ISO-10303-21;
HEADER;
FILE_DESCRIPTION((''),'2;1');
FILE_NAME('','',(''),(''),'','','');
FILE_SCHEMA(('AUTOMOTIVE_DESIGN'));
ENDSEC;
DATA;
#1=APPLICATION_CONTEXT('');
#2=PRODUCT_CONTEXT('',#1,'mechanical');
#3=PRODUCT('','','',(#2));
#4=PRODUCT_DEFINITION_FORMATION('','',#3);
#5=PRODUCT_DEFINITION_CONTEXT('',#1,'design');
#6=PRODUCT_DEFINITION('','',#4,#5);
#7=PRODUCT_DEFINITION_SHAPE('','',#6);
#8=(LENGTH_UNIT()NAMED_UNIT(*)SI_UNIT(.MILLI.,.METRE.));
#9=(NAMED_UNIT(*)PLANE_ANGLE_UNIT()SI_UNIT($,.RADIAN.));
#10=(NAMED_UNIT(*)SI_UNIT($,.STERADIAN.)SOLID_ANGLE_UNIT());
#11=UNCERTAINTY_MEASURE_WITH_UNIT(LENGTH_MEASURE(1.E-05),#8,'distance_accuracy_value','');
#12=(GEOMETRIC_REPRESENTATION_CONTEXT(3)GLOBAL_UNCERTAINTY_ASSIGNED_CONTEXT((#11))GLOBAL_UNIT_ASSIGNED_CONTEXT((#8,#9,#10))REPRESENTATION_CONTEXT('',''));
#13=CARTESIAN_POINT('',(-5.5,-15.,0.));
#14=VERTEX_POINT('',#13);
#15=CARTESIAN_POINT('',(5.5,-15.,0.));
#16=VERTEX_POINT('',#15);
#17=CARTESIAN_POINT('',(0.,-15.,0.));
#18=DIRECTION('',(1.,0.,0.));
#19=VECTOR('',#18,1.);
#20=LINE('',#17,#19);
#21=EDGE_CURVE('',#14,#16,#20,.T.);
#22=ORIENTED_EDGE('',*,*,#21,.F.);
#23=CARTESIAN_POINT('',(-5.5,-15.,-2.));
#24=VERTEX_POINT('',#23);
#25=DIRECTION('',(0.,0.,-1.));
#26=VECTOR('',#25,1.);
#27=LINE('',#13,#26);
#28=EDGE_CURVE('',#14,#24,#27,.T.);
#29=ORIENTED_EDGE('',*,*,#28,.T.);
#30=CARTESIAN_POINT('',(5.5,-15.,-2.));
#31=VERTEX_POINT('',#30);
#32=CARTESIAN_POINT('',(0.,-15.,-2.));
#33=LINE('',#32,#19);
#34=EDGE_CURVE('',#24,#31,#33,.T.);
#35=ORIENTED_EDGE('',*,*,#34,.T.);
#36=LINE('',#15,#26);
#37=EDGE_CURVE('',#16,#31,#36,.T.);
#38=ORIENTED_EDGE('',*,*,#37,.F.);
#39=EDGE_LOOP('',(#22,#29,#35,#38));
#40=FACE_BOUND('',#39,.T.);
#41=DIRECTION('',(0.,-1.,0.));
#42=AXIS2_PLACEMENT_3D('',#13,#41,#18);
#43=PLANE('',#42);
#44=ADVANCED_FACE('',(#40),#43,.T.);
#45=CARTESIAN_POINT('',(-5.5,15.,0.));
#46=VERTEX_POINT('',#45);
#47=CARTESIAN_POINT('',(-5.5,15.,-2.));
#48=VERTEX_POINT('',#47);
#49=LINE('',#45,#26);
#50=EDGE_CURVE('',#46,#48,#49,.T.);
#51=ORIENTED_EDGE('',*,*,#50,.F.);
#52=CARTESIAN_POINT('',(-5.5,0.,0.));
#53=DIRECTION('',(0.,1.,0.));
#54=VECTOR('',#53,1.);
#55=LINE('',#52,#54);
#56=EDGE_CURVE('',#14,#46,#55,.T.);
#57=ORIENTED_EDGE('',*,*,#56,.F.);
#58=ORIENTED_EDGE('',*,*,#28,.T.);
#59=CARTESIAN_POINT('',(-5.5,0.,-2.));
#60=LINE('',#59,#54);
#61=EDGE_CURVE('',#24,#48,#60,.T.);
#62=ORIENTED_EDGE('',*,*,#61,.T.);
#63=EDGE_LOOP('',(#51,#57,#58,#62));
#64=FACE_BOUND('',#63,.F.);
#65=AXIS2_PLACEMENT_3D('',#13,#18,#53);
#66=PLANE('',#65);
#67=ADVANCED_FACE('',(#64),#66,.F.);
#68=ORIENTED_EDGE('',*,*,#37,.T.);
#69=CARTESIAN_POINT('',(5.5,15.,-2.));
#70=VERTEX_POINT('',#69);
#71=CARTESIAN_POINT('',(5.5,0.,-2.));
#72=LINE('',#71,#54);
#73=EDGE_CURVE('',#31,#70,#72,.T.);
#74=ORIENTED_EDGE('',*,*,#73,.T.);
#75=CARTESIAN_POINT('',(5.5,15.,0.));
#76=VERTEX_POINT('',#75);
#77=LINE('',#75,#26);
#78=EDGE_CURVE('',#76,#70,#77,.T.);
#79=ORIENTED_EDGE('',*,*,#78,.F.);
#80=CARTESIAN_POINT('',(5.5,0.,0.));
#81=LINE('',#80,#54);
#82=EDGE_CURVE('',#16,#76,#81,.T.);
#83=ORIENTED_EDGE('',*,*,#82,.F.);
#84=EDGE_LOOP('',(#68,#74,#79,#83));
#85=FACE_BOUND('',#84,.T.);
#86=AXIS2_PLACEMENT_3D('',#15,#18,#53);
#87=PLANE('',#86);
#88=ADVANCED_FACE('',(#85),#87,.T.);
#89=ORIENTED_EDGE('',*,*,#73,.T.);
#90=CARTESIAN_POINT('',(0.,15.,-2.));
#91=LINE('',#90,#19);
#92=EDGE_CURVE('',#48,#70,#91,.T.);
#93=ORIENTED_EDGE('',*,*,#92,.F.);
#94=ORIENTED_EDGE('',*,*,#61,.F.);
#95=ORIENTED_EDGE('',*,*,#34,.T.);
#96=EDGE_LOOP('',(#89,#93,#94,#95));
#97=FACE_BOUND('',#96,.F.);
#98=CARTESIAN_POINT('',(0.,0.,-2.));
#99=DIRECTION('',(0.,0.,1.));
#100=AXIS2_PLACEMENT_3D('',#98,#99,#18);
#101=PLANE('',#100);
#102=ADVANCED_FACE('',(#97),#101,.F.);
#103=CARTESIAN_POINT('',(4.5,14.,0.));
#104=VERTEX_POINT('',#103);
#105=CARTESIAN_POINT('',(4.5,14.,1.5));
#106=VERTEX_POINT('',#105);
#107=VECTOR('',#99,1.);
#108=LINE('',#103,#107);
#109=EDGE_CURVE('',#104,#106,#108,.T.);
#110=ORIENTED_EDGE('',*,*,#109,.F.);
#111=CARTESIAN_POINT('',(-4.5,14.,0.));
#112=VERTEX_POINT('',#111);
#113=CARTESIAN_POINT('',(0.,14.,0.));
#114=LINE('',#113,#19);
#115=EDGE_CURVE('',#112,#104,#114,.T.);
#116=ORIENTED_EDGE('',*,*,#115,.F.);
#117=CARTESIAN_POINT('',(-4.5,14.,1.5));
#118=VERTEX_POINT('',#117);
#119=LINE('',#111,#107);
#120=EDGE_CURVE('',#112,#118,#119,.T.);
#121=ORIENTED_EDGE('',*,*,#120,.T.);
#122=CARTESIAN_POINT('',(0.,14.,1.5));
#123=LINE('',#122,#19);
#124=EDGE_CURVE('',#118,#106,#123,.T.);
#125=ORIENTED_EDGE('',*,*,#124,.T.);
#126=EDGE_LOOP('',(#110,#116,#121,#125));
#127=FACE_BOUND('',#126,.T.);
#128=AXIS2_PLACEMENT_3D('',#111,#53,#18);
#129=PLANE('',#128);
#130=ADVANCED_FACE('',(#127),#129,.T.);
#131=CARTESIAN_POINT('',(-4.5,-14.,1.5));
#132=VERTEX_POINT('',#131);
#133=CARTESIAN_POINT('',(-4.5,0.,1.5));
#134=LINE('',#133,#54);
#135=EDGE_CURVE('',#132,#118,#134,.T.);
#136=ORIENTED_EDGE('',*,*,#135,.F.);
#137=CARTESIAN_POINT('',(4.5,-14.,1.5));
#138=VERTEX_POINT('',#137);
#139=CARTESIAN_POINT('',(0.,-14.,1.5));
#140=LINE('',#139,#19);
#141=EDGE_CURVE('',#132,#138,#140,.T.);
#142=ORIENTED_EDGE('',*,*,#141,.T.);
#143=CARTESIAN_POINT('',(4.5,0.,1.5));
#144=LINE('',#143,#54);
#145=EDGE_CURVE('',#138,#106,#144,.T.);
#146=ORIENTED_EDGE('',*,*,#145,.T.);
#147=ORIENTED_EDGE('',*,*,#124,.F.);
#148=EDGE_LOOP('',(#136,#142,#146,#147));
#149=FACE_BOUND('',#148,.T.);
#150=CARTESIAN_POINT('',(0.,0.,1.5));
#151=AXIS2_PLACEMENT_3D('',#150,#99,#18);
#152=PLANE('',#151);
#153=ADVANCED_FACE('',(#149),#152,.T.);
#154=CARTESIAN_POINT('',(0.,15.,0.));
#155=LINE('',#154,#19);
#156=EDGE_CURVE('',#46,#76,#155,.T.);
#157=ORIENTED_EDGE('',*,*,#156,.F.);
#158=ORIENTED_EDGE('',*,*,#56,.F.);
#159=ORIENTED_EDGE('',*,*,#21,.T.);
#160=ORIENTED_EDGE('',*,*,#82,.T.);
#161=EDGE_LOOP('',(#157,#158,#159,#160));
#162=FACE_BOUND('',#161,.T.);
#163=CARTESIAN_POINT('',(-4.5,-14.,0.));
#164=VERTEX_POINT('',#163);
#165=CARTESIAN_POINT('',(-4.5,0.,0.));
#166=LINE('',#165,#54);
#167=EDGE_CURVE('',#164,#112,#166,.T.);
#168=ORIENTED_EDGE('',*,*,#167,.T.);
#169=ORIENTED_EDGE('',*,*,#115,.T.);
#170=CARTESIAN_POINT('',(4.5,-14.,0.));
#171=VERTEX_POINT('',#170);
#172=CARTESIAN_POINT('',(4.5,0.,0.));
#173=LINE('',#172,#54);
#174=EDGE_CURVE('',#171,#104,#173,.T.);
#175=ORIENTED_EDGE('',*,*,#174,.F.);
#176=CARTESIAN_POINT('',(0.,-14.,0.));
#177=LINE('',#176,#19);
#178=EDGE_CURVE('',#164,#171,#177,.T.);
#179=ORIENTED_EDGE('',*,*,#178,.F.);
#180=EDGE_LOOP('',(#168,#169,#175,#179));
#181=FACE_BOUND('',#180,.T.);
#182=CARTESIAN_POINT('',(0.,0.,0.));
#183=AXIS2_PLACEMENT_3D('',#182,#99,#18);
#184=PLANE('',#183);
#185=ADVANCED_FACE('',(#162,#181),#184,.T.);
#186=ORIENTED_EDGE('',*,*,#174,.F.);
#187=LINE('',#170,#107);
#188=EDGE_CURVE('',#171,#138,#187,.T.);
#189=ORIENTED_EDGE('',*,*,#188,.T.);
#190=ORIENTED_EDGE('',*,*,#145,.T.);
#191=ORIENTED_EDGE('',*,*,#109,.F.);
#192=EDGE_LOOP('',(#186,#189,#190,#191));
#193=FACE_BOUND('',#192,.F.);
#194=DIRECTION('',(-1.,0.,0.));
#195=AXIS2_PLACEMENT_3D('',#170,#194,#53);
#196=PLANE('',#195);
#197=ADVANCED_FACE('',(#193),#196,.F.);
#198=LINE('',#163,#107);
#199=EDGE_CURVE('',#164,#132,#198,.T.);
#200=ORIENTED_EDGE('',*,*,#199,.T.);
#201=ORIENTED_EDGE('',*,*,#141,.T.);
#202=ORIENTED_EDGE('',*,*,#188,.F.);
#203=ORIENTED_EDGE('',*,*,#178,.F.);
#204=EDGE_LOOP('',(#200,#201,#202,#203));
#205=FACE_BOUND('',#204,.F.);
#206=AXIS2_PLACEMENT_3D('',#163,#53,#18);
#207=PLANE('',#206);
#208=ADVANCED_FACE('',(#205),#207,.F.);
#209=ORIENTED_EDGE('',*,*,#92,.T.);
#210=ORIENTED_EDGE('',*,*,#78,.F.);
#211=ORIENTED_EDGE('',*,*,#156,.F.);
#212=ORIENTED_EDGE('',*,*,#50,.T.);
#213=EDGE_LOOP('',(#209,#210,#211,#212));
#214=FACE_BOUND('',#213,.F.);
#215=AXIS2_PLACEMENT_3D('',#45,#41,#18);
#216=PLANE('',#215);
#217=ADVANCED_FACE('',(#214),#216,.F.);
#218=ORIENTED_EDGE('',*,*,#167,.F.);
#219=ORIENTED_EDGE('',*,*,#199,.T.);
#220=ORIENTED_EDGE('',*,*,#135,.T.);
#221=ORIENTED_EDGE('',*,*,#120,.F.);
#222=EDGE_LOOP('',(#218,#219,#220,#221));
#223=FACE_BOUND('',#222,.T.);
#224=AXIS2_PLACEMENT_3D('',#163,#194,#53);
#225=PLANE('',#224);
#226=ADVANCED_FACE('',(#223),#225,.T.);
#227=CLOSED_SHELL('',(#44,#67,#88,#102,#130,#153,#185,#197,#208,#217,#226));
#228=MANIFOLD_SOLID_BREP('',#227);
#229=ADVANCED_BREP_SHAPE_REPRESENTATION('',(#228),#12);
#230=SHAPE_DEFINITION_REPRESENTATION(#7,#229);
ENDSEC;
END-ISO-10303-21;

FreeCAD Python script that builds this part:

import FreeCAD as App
import Part
import Sketcher
Q = App.Units.Quantity

doc = App.newDocument("Part")
body = doc.addObject("PartDesign::Body", "Body")

sketch1 = body.newObject("Sketcher::SketchObject", "Sketch")
sketch1.AttachmentSupport = (doc.getObject("XY_Plane"), [""])
sketch1.MapMode = "FlatFace"
sketch1.addGeometry(Part.LineSegment(App.Vector(-6, 15, 0), App.Vector(-6, -15, 0)), False)
sketch1.addGeometry(Part.LineSegment(App.Vector(-6, -15, 0), App.Vector(6, -15, 0)), False)
sketch1.addGeometry(Part.LineSegment(App.Vector(6, -15, 0), App.Vector(6, 15, 0)), False)
sketch1.addGeometry(Part.LineSegment(App.Vector(6, 15, 0), App.Vector(-6, 15, 0)), False)
sketch1.addConstraint(Sketcher.Constraint("Coincident", 0, 2, 1, 1))
sketch1.addConstraint(Sketcher.Constraint("Coincident", 1, 2, 2, 1))
sketch1.addConstraint(Sketcher.Constraint("Coincident", 2, 2, 3, 1))
sketch1.addConstraint(Sketcher.Constraint("Coincident", 3, 2, 0, 1))
sketch1.addConstraint(Sketcher.Constraint("Vertical", 0))
sketch1.addConstraint(Sketcher.Constraint("Horizontal", 1))
sketch1.addConstraint(Sketcher.Constraint("Vertical", 2))
sketch1.addConstraint(Sketcher.Constraint("Horizontal", 3))
sketch1.addConstraint(Sketcher.Constraint("Symmetric", 0, 2, 2, 2, -1, 1))
sketch1.addConstraint(Sketcher.Constraint("DistanceX", 1, 1, 1, 2, Q("11 mm")))
sketch1.addConstraint(Sketcher.Constraint("DistanceY", 0, 2, 0, 1, Q("30 mm")))
pad1 = body.newObject("PartDesign::Pad", "Pad")
pad1.Profile = sketch1
pad1.Length = 2
pad1.Reversed = True

sketch2 = body.newObject("Sketcher::SketchObject", "Sketch001")
sketch2.AttachmentSupport = (doc.getObject("XY_Plane"), [""])
sketch2.MapMode = "FlatFace"
sketch2.addGeometry(Part.LineSegment(App.Vector(-4, 14, 0), App.Vector(-4, -14, 0)), False)
sketch2.addGeometry(Part.LineSegment(App.Vector(-4, -14, 0), App.Vector(4, -14, 0)), False)
sketch2.addGeometry(Part.LineSegment(App.Vector(4, -14, 0), App.Vector(4, 14, 0)), False)
sketch2.addGeometry(Part.LineSegment(App.Vector(4, 14, 0), App.Vector(-4, 14, 0)), False)
sketch2.addConstraint(Sketcher.Constraint("Coincident", 0, 2, 1, 1))
sketch2.addConstraint(Sketcher.Constraint("Coincident", 1, 2, 2, 1))
sketch2.addConstraint(Sketcher.Constraint("Coincident", 2, 2, 3, 1))
sketch2.addConstraint(Sketcher.Constraint("Coincident", 3, 2, 0, 1))
sketch2.addConstraint(Sketcher.Constraint("Vertical", 0))
sketch2.addConstraint(Sketcher.Constraint("Horizontal", 1))
sketch2.addConstraint(Sketcher.Constraint("Vertical", 2))
sketch2.addConstraint(Sketcher.Constraint("Horizontal", 3))
sketch2.addConstraint(Sketcher.Constraint("Symmetric", 0, 2, 2, 2, -1, 1))
sketch2.addConstraint(Sketcher.Constraint("DistanceX", 1, 1, 1, 2, Q("9 mm")))
sketch2.addConstraint(Sketcher.Constraint("DistanceY", 0, 2, 0, 1, Q("28 mm")))
pad2 = body.newObject("PartDesign::Pad", "Pad001")
pad2.Profile = sketch2
pad2.Length = 1.5

doc.recompute()
